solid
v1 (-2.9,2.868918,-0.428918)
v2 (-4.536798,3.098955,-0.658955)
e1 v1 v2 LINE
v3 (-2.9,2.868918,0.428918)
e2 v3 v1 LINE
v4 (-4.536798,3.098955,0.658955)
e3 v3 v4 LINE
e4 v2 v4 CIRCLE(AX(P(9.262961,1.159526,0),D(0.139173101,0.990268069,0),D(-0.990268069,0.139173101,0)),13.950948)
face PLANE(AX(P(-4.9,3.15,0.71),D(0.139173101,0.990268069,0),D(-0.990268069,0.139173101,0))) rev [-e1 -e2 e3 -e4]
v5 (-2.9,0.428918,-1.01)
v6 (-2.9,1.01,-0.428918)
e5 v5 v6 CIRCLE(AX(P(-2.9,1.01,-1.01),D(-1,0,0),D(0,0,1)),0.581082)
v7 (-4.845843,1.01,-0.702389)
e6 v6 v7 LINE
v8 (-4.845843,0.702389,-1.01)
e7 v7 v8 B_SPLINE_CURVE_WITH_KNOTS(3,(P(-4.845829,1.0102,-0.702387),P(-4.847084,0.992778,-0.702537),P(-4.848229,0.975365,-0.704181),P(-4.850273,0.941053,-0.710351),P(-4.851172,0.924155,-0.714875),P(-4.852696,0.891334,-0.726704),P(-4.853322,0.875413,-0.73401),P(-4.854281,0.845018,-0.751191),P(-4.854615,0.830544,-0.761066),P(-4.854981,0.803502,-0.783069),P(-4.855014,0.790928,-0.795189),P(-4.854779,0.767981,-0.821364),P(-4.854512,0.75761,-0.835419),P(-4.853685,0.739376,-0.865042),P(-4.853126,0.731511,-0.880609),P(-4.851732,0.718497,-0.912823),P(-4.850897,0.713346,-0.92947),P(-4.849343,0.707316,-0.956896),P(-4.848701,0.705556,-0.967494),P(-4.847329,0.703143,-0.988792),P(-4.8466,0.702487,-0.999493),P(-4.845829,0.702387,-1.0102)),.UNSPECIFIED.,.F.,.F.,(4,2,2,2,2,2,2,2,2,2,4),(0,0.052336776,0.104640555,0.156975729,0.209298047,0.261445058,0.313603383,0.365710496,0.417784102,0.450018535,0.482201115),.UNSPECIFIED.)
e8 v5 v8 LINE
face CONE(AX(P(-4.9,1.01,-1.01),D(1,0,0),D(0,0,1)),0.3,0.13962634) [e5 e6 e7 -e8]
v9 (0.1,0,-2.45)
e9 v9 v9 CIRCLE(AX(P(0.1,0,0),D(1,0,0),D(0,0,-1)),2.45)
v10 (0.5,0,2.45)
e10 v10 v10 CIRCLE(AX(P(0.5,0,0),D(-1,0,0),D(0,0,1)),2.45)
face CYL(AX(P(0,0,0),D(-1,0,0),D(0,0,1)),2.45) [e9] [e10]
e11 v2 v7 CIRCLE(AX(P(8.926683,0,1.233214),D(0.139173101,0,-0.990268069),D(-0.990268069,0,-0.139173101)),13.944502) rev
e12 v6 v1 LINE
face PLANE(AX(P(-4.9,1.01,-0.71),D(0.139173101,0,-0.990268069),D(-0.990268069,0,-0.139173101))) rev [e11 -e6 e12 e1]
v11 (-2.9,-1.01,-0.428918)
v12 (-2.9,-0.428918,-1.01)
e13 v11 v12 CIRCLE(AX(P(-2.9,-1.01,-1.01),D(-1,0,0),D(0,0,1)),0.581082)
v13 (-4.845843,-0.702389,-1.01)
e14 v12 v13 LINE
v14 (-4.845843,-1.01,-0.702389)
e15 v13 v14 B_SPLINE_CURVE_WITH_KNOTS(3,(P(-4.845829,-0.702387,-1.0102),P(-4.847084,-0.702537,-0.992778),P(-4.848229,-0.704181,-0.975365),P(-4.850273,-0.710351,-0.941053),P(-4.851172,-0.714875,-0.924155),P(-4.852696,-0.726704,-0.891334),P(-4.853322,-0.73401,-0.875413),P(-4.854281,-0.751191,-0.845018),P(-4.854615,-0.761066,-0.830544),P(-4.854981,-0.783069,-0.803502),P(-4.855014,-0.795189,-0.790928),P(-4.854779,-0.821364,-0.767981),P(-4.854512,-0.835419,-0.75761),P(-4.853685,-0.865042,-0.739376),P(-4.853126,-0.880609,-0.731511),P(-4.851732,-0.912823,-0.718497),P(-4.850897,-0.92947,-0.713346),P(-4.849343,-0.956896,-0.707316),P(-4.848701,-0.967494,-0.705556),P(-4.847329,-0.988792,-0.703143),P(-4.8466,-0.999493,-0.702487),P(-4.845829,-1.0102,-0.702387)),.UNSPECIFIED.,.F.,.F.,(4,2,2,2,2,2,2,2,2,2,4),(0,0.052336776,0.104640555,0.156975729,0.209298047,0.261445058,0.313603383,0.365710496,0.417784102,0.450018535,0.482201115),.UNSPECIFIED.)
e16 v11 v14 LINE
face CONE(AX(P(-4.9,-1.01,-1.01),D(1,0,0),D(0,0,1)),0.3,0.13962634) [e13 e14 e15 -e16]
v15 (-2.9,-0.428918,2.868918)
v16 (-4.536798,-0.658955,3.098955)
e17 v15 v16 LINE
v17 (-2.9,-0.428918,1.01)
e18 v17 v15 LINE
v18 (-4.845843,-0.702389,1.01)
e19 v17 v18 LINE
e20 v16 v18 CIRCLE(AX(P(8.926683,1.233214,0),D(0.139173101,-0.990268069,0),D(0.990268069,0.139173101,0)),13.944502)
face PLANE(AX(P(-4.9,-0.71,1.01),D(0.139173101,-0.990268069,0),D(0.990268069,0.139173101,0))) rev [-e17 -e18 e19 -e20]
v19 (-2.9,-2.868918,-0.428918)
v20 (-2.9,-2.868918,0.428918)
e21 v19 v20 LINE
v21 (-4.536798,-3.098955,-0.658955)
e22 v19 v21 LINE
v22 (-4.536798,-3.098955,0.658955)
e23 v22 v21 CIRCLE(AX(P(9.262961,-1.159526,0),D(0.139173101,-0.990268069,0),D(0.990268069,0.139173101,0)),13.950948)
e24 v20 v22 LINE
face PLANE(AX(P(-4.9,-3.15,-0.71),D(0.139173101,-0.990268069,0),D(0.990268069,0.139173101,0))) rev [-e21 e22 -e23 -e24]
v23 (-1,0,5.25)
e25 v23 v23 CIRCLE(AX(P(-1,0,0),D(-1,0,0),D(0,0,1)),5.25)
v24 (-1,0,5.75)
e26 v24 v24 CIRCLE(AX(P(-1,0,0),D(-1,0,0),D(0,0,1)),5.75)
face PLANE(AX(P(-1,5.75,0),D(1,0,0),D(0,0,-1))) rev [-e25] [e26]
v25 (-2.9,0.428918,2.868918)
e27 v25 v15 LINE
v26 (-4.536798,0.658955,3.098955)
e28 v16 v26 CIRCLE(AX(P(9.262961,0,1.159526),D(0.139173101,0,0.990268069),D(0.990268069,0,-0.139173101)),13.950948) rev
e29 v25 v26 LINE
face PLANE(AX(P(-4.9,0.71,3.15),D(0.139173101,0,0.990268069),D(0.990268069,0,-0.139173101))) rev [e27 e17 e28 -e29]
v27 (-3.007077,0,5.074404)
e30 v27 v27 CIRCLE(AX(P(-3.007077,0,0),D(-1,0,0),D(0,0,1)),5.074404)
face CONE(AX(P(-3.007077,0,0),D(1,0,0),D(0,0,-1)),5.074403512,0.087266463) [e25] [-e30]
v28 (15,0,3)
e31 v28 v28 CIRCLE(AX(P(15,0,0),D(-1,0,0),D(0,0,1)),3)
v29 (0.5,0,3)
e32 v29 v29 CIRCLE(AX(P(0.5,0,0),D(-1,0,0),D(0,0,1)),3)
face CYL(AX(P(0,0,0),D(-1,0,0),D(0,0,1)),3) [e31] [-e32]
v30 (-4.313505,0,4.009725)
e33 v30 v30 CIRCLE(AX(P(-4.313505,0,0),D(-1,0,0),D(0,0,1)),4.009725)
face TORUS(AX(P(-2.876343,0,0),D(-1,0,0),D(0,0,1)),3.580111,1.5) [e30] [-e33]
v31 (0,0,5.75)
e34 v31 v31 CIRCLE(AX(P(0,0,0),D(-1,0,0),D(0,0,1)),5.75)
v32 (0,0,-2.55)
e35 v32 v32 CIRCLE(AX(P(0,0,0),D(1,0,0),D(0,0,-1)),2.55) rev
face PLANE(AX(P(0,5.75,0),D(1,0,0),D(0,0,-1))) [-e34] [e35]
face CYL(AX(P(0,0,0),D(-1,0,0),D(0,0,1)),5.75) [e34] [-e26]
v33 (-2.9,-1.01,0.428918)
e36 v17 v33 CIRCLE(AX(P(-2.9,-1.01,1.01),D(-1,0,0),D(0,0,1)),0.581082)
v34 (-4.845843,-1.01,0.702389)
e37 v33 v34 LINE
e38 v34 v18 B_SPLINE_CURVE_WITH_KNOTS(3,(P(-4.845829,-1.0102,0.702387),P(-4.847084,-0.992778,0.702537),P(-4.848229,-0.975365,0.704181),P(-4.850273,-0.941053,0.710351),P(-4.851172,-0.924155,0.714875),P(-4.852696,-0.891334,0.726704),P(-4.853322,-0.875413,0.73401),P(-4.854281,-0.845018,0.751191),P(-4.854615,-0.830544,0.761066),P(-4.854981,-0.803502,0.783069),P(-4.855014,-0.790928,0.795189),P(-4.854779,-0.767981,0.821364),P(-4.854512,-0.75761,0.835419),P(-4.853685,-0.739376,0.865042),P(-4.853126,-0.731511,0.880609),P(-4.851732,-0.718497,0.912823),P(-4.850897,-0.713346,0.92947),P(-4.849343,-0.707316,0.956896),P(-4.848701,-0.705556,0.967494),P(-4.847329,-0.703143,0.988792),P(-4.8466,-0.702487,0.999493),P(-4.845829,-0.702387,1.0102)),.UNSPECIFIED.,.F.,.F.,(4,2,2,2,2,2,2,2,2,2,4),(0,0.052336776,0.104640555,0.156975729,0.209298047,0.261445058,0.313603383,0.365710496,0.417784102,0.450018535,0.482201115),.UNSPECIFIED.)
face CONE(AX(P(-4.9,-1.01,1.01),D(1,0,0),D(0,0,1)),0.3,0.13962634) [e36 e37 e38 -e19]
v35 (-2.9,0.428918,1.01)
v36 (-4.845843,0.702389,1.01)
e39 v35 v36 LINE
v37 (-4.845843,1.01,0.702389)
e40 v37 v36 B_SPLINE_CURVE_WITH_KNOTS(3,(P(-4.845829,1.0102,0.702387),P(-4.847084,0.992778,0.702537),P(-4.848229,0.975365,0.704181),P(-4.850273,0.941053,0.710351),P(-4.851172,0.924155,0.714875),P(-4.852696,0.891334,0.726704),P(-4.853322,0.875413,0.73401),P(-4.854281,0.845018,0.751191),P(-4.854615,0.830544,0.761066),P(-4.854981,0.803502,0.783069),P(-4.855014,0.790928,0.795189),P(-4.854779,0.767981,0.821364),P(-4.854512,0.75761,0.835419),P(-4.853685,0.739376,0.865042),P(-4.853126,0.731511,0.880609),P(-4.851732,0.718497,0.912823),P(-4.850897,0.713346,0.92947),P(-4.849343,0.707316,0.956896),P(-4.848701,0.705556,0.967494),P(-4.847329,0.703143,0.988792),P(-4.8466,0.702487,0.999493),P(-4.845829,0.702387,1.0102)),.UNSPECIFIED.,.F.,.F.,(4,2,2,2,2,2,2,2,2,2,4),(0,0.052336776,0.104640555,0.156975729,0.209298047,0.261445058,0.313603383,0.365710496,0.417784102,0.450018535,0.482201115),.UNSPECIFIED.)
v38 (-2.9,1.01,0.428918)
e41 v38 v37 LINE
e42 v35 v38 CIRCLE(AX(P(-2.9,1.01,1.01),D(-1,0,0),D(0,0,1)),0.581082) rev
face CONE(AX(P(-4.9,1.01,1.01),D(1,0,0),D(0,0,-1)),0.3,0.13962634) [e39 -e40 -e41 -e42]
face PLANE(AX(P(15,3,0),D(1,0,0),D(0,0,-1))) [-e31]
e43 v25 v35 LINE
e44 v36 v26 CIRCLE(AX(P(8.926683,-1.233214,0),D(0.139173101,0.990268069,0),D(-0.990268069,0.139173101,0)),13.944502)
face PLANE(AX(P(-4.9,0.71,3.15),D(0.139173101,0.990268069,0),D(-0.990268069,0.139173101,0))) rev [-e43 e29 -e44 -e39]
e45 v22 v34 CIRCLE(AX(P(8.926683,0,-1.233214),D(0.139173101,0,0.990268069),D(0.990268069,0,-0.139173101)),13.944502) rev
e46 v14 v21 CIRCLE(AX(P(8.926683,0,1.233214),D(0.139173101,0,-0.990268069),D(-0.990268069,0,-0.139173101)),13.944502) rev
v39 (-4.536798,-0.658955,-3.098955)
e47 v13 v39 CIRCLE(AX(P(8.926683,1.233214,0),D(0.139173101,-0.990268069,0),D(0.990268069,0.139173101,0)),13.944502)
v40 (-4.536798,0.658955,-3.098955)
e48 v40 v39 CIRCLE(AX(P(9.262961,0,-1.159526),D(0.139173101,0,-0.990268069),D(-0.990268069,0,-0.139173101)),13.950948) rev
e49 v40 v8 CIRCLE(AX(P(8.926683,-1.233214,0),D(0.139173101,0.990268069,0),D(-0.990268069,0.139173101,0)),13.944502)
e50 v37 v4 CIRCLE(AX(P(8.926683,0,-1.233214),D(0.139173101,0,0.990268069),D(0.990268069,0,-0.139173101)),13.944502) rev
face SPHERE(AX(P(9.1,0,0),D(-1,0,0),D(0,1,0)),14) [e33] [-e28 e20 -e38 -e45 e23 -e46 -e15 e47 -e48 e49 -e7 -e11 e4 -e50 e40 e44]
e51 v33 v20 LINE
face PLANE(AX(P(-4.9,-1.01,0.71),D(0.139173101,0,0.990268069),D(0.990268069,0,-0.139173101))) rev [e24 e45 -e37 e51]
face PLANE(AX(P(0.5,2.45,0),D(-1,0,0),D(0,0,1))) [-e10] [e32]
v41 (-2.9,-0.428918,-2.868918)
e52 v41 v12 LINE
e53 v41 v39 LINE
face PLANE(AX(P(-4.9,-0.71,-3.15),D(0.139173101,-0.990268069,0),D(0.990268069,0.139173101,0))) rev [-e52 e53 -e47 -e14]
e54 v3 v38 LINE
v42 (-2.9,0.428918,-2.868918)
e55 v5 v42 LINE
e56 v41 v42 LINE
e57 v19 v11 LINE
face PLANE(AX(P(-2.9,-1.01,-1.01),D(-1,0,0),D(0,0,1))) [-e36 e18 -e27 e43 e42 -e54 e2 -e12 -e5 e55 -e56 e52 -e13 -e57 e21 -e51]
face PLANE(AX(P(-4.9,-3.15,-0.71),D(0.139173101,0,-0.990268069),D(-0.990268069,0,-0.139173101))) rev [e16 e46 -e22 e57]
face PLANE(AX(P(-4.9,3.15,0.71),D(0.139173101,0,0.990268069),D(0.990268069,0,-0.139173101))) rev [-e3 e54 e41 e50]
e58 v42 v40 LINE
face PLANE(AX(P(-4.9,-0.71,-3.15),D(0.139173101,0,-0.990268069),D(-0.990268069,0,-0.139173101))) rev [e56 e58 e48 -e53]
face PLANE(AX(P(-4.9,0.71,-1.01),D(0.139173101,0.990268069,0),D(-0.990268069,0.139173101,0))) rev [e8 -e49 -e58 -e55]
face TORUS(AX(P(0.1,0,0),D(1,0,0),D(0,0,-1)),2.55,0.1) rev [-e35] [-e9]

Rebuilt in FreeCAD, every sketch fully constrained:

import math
import FreeCAD as App
import Part
import Sketcher

V = App.Vector
Q = App.Units.Quantity


def edges_at(feature, points):
    """Names of the edges that pass closest to the given points."""
    edges = feature.Shape.Edges
    near = lambda p: min(range(len(edges)), key=lambda i: edges[i].distToShape(Part.Vertex(*p))[0])
    return sorted({f"Edge{near(p) + 1}" for p in points})

doc = App.newDocument("Part")
body = doc.addObject("PartDesign::Body", "Body")

# Sketch on XY plane
sketch1 = body.newObject("Sketcher::SketchObject", "Sketch")
sketch1.AttachmentSupport = (doc.getObject("XY_Plane"), [""])
sketch1.MapMode = "FlatFace"
sketch1.addGeometry([
    Part.LineSegment(V(-1, 5.2, 0), V(-3, 5.1, 0)),  # 0
    Part.ArcOfCircle(Part.Circle(V(-2.9, 3.6, 0), V(0, 0, 1), 1.5), math.radians(95), math.radians(163)),  # 1
    Part.ArcOfCircle(Part.Circle(V(9.1, 0, 0), V(0, 0, 1), 14), math.radians(163.36), math.radians(180)),  # 2
    Part.LineSegment(V(-4.9, 0, 0), V(15, 0, 0)),  # 3
    Part.LineSegment(V(15, 0, 0), V(15, 3, 0)),  # 4
    Part.LineSegment(V(15, 3, 0), V(0.5, 3, 0)),  # 5
    Part.LineSegment(V(0.5, 3, 0), V(0.5, 2.5, 0)),  # 6
    Part.LineSegment(V(0.5, 2.5, 0), V(0, 2.5, 0)),  # 7
    Part.LineSegment(V(0, 2.5, 0), V(0, 5.8, 0)),  # 8
    Part.LineSegment(V(0, 5.8, 0), V(-1, 5.8, 0)),  # 9
    Part.LineSegment(V(-1, 5.8, 0), V(-1, 5.2, 0)),  # 10
], False)
sketch1.addConstraint([
    Sketcher.Constraint("Tangent", 0, 2, 1, 1),
    Sketcher.Constraint("Tangent", 1, 2, 2, 1),
    Sketcher.Constraint("Coincident", 2, 2, 3, 1),
    Sketcher.Constraint("Coincident", 3, 2, 4, 1),
    Sketcher.Constraint("Coincident", 4, 2, 5, 1),
    Sketcher.Constraint("Coincident", 5, 2, 6, 1),
    Sketcher.Constraint("Coincident", 6, 2, 7, 1),
    Sketcher.Constraint("Coincident", 7, 2, 8, 1),
    Sketcher.Constraint("Coincident", 8, 2, 9, 1),
    Sketcher.Constraint("Coincident", 9, 2, 10, 1),
    Sketcher.Constraint("Coincident", 10, 2, 0, 1),
    Sketcher.Constraint("Horizontal", 3),
    Sketcher.Constraint("Vertical", 4),
    Sketcher.Constraint("Horizontal", 5),
    Sketcher.Constraint("Vertical", 6),
    Sketcher.Constraint("Horizontal", 7),
    Sketcher.Constraint("Vertical", 8),
    Sketcher.Constraint("Horizontal", 9),
    Sketcher.Constraint("Vertical", 10),
    Sketcher.Constraint("PointOnObject", 2, 3, -1),
    Sketcher.Constraint("PointOnObject", 2, 2, -1),
    Sketcher.Constraint("PointOnObject", 7, 2, -2),
    Sketcher.Constraint("Equal", 7, 10),
    Sketcher.Constraint("Radius", 2, Q("14 mm")),
    Sketcher.Constraint("Radius", 1, Q("1.5 mm")),
    Sketcher.Constraint("DistanceX", 9, 2, 9, 1, Q("1 mm")),
    Sketcher.Constraint("DistanceY", 4, 1, 4, 2, Q("3 mm")),
    Sketcher.Constraint("Angle", 0, Q("-175 deg")),
    Sketcher.Constraint("DistanceX", 3, 1, 3, 2, Q("19.9 mm")),
    Sketcher.Constraint("DistanceX", 5, 2, 5, 1, Q("14.5 mm")),
    Sketcher.Constraint("DistanceX", 7, 2, 7, 1, Q("0.5 mm")),
    Sketcher.Constraint("DistanceY", 8, 1, 8, 2, Q("3.3 mm")),
    Sketcher.Constraint("DistanceY", 6, 2, 6, 1, Q("0.55 mm")),
])
revolution = body.newObject("PartDesign::Revolution", "Revolution")
revolution.Profile = sketch1
revolution.ReferenceAxis = (sketch1, ["H_Axis"])
revolution.Angle = 360

# Sketch on YZ plane
sketch2 = body.newObject("Sketcher::SketchObject", "Sketch001")
sketch2.AttachmentSupport = (doc.getObject("YZ_Plane"), [""])
sketch2.MapMode = "FlatFace"
sketch2.AttachmentOffset = App.Placement(V(0, 0, -4.9), App.Rotation())
sketch2.addGeometry([
    Part.LineSegment(V(-3.15, -0.71, 0), V(-1.01, -0.71, 0)),  # 0
    Part.ArcOfCircle(Part.Circle(V(-1.01, -1.01, 0), V(0, 0, 1), 0.3), math.radians(0), math.radians(90)),  # 1
    Part.LineSegment(V(-0.71, -1.01, 0), V(-0.71, -3.15, 0)),  # 2
    Part.LineSegment(V(-0.71, -3.15, 0), V(0.71, -3.15, 0)),  # 3
    Part.LineSegment(V(0.71, -3.15, 0), V(0.71, -1.01, 0)),  # 4
    Part.ArcOfCircle(Part.Circle(V(1.01, -1.01, 0), V(0, 0, 1), 0.3), math.radians(90), math.radians(180)),  # 5
    Part.LineSegment(V(1.01, -0.71, 0), V(3.15, -0.71, 0)),  # 6
    Part.LineSegment(V(3.15, -0.71, 0), V(3.15, 0.71, 0)),  # 7
    Part.LineSegment(V(3.15, 0.71, 0), V(1.01, 0.71, 0)),  # 8
    Part.ArcOfCircle(Part.Circle(V(1.01, 1.01, 0), V(0, 0, 1), 0.3), math.radians(-180), math.radians(-90)),  # 9
    Part.LineSegment(V(0.71, 1.01, 0), V(0.71, 3.15, 0)),  # 10
    Part.LineSegment(V(0.71, 3.15, 0), V(-0.71, 3.15, 0)),  # 11
    Part.LineSegment(V(-0.71, 3.15, 0), V(-0.71, 1.01, 0)),  # 12
    Part.ArcOfCircle(Part.Circle(V(-1.01, 1.01, 0), V(0, 0, 1), 0.3), math.radians(-90), math.radians(0)),  # 13
    Part.LineSegment(V(-1.01, 0.71, 0), V(-3.15, 0.71, 0)),  # 14
    Part.LineSegment(V(-3.15, 0.71, 0), V(-3.15, -0.71, 0)),  # 15
], False)
sketch2.addConstraint([
    Sketcher.Constraint("Tangent", 0, 2, 1, 2),
    Sketcher.Constraint("Tangent", 1, 1, 2, 1),
    Sketcher.Constraint("Coincident", 2, 2, 3, 1),
    Sketcher.Constraint("Coincident", 3, 2, 4, 1),
    Sketcher.Constraint("Tangent", 4, 2, 5, 2),
    Sketcher.Constraint("Tangent", 5, 1, 6, 1),
    Sketcher.Constraint("Coincident", 6, 2, 7, 1),
    Sketcher.Constraint("Coincident", 7, 2, 8, 1),
    Sketcher.Constraint("Tangent", 8, 2, 9, 2),
    Sketcher.Constraint("Tangent", 9, 1, 10, 1),
    Sketcher.Constraint("Coincident", 10, 2, 11, 1),
    Sketcher.Constraint("Coincident", 11, 2, 12, 1),
    Sketcher.Constraint("Tangent", 12, 2, 13, 2),
    Sketcher.Constraint("Tangent", 13, 1, 14, 1),
    Sketcher.Constraint("Coincident", 14, 2, 15, 1),
    Sketcher.Constraint("Coincident", 15, 2, 0, 1),
    Sketcher.Constraint("Horizontal", 0),
    Sketcher.Constraint("Vertical", 2),
    Sketcher.Constraint("Horizontal", 3),
    Sketcher.Constraint("Vertical", 4),
    Sketcher.Constraint("Horizontal", 6),
    Sketcher.Constraint("Vertical", 7),
    Sketcher.Constraint("Horizontal", 8),
    Sketcher.Constraint("Vertical", 10),
    Sketcher.Constraint("Horizontal", 11),
    Sketcher.Constraint("Vertical", 12),
    Sketcher.Constraint("Horizontal", 14),
    Sketcher.Constraint("Vertical", 15),
    Sketcher.Constraint("Equal", 1, 5),
    Sketcher.Constraint("Equal", 5, 9),
    Sketcher.Constraint("Equal", 9, 13),
    Sketcher.Constraint("Symmetric", 1, 3, 9, 3, -1, 1),
    Sketcher.Constraint("Symmetric", 5, 3, 13, 3, -1, 1),
    Sketcher.Constraint("Symmetric", 1, 3, 5, 3, -2),
    Sketcher.Constraint("Equal", 0, 6),
    Sketcher.Constraint("Equal", 14, 2),
    Sketcher.Constraint("Equal", 11, 7),
    Sketcher.Constraint("Equal", 4, 10),
    Sketcher.Constraint("Radius", 1, Q("0.3 mm")),
    Sketcher.Constraint("DistanceX", 0, 1, 0, 2, Q("2.14 mm")),
    Sketcher.Constraint("DistanceX", 3, 1, 3, 2, Q("1.42 mm")),
])
pocket1 = body.newObject("PartDesign::Pocket", "Pocket")
pocket1.Profile = sketch2
pocket1.Length = 2
pocket1.Reversed = True
pocket1.TaperAngle = -8
doc.recompute()

fillet = body.newObject("PartDesign::Fillet", "Fillet")
fillet.Base = (pocket1, edges_at(pocket1, [(0, 0, -2.45)]))
fillet.Radius = 0.1

doc.recompute()
